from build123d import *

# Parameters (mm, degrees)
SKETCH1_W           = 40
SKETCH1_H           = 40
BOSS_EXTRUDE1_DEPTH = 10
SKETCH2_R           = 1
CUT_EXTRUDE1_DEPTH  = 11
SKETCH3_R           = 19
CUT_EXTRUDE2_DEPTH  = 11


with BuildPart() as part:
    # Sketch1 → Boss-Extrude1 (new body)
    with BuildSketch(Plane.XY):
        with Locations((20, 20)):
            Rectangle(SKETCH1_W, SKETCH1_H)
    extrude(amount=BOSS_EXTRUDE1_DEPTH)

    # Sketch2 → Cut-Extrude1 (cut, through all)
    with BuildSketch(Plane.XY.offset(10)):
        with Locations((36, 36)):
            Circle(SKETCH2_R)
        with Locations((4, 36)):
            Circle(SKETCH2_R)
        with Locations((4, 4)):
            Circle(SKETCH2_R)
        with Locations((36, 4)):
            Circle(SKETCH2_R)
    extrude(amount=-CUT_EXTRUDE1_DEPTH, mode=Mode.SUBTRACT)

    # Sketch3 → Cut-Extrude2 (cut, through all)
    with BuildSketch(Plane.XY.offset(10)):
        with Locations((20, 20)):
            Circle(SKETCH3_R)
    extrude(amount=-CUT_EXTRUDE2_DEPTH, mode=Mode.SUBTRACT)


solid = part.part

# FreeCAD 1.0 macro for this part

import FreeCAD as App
import Part
import Sketcher
Q = App.Units.Quantity

doc = App.newDocument("Part")
params = doc.addObject("Spreadsheet::Sheet", "Params")
for row, (alias, value) in enumerate([
    ("sketch1_width", "40 mm"),
    ("pad1_length", "10 mm"),
    ("sketch2_diameter", "2 mm"),
    ("sketch3_diameter", "38 mm"),
], start=1):
    params.set(f"A{row}", alias)
    params.set(f"B{row}", "=" + value)
    params.setAlias(f"B{row}", alias)

body = doc.addObject("PartDesign::Body", "Body")

sketch1 = doc.addObject("Sketcher::SketchObject", "Sketch")
body.addObject(sketch1)
sketch1.AttachmentSupport = (doc.XY_Plane, [""])
sketch1.MapMode = "FlatFace"
sketch1.addGeometry(Part.LineSegment(App.Vector(0, 40, 0), App.Vector(0, 0, 0)), False)
sketch1.addGeometry(Part.LineSegment(App.Vector(0, 0, 0), App.Vector(40, 0, 0)), False)
sketch1.addGeometry(Part.LineSegment(App.Vector(40, 0, 0), App.Vector(40, 40, 0)), False)
sketch1.addGeometry(Part.LineSegment(App.Vector(40, 40, 0), App.Vector(0, 40, 0)), False)
sketch1.addConstraint(Sketcher.Constraint("Coincident", 0, 2, 1, 1))
sketch1.addConstraint(Sketcher.Constraint("Coincident", 1, 2, 2, 1))
sketch1.addConstraint(Sketcher.Constraint("Coincident", 2, 2, 3, 1))
sketch1.addConstraint(Sketcher.Constraint("Coincident", 3, 2, 0, 1))
sketch1.addConstraint(Sketcher.Constraint("Vertical", 0))
sketch1.addConstraint(Sketcher.Constraint("Horizontal", 1))
sketch1.addConstraint(Sketcher.Constraint("Vertical", 2))
sketch1.addConstraint(Sketcher.Constraint("Horizontal", 3))
sketch1.addConstraint(Sketcher.Constraint("Coincident", 0, 2, -1, 1))
sketch1.addConstraint(Sketcher.Constraint("Equal", 3, 0))
sketch1.addConstraint(Sketcher.Constraint("DistanceX", 1, 1, 1, 2, Q("40 mm")))
sketch1.setExpression("Constraints[10]", "Params.sketch1_width")
pad1 = doc.addObject("PartDesign::Pad", "Pad")
body.addObject(pad1)
pad1.Profile = sketch1
pad1.setExpression("Length", "Params.pad1_length")

sketch2 = doc.addObject("Sketcher::SketchObject", "Sketch001")
body.addObject(sketch2)
sketch2.AttachmentSupport = (doc.XY_Plane, [""])
sketch2.MapMode = "FlatFace"
sketch2.AttachmentOffset = App.Placement(App.Vector(0, 0, 10), App.Rotation())
sketch2.addGeometry(Part.Circle(App.Vector(36, 36, 0), App.Vector(0, 0, 1), 1), False)
sketch2.addGeometry(Part.Circle(App.Vector(4, 36, 0), App.Vector(0, 0, 1), 1), False)
sketch2.addGeometry(Part.Circle(App.Vector(4, 4, 0), App.Vector(0, 0, 1), 1), False)
sketch2.addGeometry(Part.Circle(App.Vector(36, 4, 0), App.Vector(0, 0, 1), 1), False)
sketch2.addConstraint(Sketcher.Constraint("Equal", 0, 1))
sketch2.addConstraint(Sketcher.Constraint("Equal", 1, 2))
sketch2.addConstraint(Sketcher.Constraint("Equal", 2, 3))
sketch2.addConstraint(Sketcher.Constraint("Horizontal", 0, 3, 1, 3))
sketch2.addConstraint(Sketcher.Constraint("Horizontal", 2, 3, 3, 3))
sketch2.addConstraint(Sketcher.Constraint("Vertical", 1, 3, 2, 3))
sketch2.addConstraint(Sketcher.Constraint("Vertical", 0, 3, 3, 3))
sketch2.addConstraint(Sketcher.Constraint("Diameter", 0, Q("2 mm")))
sketch2.addConstraint(Sketcher.Constraint("DistanceX", -1, 1, 0, 3, Q("36 mm")))
sketch2.addConstraint(Sketcher.Constraint("DistanceY", -1, 1, 0, 3, Q("36 mm")))
sketch2.addConstraint(Sketcher.Constraint("DistanceX", -1, 1, 1, 3, Q("4 mm")))
sketch2.addConstraint(Sketcher.Constraint("DistanceY", -1, 1, 2, 3, Q("4 mm")))
sketch2.setExpression("Constraints[7]", "Params.sketch2_diameter")
pocket1 = doc.addObject("PartDesign::Pocket", "Pocket")
body.addObject(pocket1)
pocket1.Profile = sketch2
pocket1.Type = "ThroughAll"

sketch3 = doc.addObject("Sketcher::SketchObject", "Sketch002")
body.addObject(sketch3)
sketch3.AttachmentSupport = (doc.XY_Plane, [""])
sketch3.MapMode = "FlatFace"
sketch3.AttachmentOffset = App.Placement(App.Vector(0, 0, 10), App.Rotation())
sketch3.addGeometry(Part.Circle(App.Vector(20, 20, 0), App.Vector(0, 0, 1), 19), False)
sketch3.addConstraint(Sketcher.Constraint("Diameter", 0, Q("38 mm")))
sketch3.addConstraint(Sketcher.Constraint("DistanceX", -1, 1, 0, 3, Q("20 mm")))
sketch3.addConstraint(Sketcher.Constraint("DistanceY", -1, 1, 0, 3, Q("20 mm")))
sketch3.setExpression("Constraints[0]", "Params.sketch3_diameter")
pocket2 = doc.addObject("PartDesign::Pocket", "Pocket001")
body.addObject(pocket2)
pocket2.Profile = sketch3
pocket2.Type = "ThroughAll"

doc.recompute()
